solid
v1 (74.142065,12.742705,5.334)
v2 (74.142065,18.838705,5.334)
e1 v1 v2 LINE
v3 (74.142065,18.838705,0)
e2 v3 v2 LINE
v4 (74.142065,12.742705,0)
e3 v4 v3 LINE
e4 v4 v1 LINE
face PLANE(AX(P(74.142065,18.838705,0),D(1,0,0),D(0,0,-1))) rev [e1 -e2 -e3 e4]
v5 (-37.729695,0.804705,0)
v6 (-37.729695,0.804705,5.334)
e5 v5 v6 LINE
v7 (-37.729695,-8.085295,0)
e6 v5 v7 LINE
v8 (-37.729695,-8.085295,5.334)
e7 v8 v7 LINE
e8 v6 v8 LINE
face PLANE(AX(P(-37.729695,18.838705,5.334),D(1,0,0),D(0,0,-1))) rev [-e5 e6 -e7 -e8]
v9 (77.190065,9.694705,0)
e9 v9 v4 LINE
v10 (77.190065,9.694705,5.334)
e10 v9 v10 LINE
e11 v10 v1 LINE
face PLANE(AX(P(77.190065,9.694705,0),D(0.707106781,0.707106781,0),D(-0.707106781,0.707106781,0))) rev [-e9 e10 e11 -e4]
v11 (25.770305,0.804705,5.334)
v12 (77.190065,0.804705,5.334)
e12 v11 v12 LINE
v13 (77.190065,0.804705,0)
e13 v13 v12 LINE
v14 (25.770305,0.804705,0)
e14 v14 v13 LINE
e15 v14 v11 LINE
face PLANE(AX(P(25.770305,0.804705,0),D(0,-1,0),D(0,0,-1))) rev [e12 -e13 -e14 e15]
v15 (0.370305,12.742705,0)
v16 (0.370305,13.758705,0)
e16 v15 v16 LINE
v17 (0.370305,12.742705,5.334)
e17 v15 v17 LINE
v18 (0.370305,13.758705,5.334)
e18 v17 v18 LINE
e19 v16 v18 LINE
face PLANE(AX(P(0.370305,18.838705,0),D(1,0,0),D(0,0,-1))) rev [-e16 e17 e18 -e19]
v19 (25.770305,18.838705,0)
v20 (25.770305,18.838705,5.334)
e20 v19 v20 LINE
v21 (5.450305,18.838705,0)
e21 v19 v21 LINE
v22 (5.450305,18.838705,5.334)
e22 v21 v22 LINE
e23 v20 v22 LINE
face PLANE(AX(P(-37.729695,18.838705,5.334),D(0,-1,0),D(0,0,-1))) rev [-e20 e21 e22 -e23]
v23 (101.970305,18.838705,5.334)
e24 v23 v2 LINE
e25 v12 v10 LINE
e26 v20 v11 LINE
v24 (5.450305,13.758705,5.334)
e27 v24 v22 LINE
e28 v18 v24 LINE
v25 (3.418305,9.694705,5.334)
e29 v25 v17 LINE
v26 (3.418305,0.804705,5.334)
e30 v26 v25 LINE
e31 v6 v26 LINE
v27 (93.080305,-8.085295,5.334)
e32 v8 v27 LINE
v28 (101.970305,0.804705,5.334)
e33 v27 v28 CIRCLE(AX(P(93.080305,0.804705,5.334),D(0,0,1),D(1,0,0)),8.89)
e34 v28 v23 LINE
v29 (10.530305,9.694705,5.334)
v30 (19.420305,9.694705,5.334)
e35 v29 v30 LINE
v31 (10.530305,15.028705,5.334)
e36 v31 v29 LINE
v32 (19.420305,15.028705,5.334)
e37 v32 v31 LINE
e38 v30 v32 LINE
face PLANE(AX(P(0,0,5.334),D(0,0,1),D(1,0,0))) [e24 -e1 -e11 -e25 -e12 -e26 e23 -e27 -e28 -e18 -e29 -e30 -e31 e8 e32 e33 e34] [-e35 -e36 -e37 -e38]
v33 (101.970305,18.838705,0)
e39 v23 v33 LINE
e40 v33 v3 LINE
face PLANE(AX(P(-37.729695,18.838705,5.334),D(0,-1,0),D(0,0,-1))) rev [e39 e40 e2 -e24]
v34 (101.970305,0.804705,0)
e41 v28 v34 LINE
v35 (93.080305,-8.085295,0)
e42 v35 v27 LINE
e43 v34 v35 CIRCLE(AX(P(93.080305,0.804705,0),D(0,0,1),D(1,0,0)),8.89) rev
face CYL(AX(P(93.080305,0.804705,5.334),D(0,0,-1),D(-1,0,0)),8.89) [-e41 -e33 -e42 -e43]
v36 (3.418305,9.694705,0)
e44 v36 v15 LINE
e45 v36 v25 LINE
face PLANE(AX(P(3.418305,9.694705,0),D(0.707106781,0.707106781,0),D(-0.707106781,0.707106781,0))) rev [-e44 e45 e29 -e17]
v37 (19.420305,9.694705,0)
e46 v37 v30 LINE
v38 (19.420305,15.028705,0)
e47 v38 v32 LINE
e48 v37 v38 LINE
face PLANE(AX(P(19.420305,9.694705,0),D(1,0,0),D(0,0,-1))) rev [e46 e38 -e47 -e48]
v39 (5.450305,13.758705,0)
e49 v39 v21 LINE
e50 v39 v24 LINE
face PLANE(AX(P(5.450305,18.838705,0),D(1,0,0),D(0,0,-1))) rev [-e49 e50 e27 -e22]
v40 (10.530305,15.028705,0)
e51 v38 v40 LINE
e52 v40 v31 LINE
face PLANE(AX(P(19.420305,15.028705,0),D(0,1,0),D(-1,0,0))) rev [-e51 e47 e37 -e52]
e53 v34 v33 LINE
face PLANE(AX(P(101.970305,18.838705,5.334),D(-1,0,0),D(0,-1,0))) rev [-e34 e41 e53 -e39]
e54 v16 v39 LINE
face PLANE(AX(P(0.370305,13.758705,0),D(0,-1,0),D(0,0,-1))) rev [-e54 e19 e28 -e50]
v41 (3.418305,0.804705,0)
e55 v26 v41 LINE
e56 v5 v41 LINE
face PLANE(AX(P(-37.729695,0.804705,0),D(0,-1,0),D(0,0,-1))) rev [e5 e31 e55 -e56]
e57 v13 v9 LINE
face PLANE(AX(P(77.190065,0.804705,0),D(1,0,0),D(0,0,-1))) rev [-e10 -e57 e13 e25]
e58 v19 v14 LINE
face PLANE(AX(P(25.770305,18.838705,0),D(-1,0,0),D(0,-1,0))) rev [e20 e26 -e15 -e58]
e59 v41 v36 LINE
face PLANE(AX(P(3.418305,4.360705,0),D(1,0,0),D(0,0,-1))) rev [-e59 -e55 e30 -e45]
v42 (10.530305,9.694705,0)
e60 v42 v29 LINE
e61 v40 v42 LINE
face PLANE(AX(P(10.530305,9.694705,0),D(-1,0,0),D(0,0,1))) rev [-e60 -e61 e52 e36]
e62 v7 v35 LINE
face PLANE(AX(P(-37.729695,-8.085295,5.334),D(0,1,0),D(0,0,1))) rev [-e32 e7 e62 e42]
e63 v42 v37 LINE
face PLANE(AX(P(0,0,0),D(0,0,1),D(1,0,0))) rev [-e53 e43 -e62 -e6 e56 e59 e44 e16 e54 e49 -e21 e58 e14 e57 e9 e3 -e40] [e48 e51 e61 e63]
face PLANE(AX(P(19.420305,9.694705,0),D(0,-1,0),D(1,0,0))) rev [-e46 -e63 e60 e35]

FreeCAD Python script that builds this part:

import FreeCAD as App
import Part
import Sketcher
from FreeCAD import Vector
Q = App.Units.Quantity


def edges_at(feature, points):
    """Names of the edges that pass closest to the given points."""
    edges = feature.Shape.Edges
    near = lambda p: min(range(len(edges)), key=lambda i: edges[i].distToShape(Part.Vertex(*p))[0])
    return sorted({f"Edge{near(p) + 1}" for p in points})

doc = App.newDocument("Part")
body = doc.addObject("PartDesign::Body", "Body")

# Sketch on XY plane
sketch1 = body.newObject("Sketcher::SketchObject", "Sketch")
sketch1.AttachmentSupport = (doc.getObject("XY_Plane"), [""])
sketch1.MapMode = "FlatFace"
sketch1.addGeometry([
    Part.LineSegment(Vector(-38, 19, 0), Vector(-38, -8, 0)),
    Part.LineSegment(Vector(-38, -8, 0), Vector(102, -8, 0)),
    Part.LineSegment(Vector(102, -8, 0), Vector(102, 19, 0)),
    Part.LineSegment(Vector(102, 19, 0), Vector(-38, 19, 0)),
], False)
sketch1.addConstraint([
    Sketcher.Constraint("Coincident", 0, 2, 1, 1),
    Sketcher.Constraint("Coincident", 1, 2, 2, 1),
    Sketcher.Constraint("Coincident", 2, 2, 3, 1),
    Sketcher.Constraint("Coincident", 3, 2, 0, 1),
    Sketcher.Constraint("Vertical", 0),
    Sketcher.Constraint("Horizontal", 1),
    Sketcher.Constraint("Vertical", 2),
    Sketcher.Constraint("Horizontal", 3),
    Sketcher.Constraint("DistanceX", 1, 1, 1, 2, Q("5.5 in")),
    Sketcher.Constraint("DistanceY", 0, 2, 0, 1, Q("1.06 in")),
    Sketcher.Constraint("DistanceX", 0, 2, -1, 1, Q("37.729695 mm")),
    Sketcher.Constraint("DistanceY", 0, 2, -1, 1, Q("8.085295 mm")),
])
pad1 = body.newObject("PartDesign::Pad", "Pad")
pad1.Profile = sketch1
pad1.Length = Q("0.21 in")

# Sketch on XY plane
sketch2 = body.newObject("Sketcher::SketchObject", "Sketch001")
sketch2.AttachmentSupport = (doc.getObject("XY_Plane"), [""])
sketch2.MapMode = "FlatFace"
sketch2.AttachmentOffset = App.Placement(Vector(0, 0, 0.21 * 25.4), App.Rotation())
sketch2.addGeometry([
    Part.LineSegment(Vector(-38, 19, 0), Vector(-38, 1, 0)),
    Part.LineSegment(Vector(-38, 1, 0), Vector(0, 1, 0)),
    Part.LineSegment(Vector(0, 1, 0), Vector(0, 19, 0)),
    Part.LineSegment(Vector(0, 19, 0), Vector(-38, 19, 0)),
], False)
sketch2.addConstraint([
    Sketcher.Constraint("Coincident", 0, 2, 1, 1),
    Sketcher.Constraint("Coincident", 1, 2, 2, 1),
    Sketcher.Constraint("Coincident", 2, 2, 3, 1),
    Sketcher.Constraint("Coincident", 3, 2, 0, 1),
    Sketcher.Constraint("Vertical", 0),
    Sketcher.Constraint("Horizontal", 1),
    Sketcher.Constraint("Vertical", 2),
    Sketcher.Constraint("Horizontal", 3),
    Sketcher.Constraint("DistanceX", 1, 1, 1, 2, Q("1.5 in")),
    Sketcher.Constraint("DistanceY", 0, 2, 0, 1, Q("0.71 in")),
    Sketcher.Constraint("DistanceX", 0, 2, -1, 1, Q("37.729695 mm")),
    Sketcher.Constraint("DistanceY", -1, 1, 0, 2, Q("0.804705 mm")),
])
pocket1 = body.newObject("PartDesign::Pocket", "Pocket")
pocket1.Profile = sketch2
pocket1.Type = "ThroughAll"

# Sketch on XY plane
sketch3 = body.newObject("Sketcher::SketchObject", "Sketch002")
sketch3.AttachmentSupport = (doc.getObject("XY_Plane"), [""])
sketch3.MapMode = "FlatFace"
sketch3.AttachmentOffset = App.Placement(Vector(0, 0, 0.21 * 25.4), App.Rotation())
sketch3.addGeometry([
    Part.LineSegment(Vector(26, 19, 0), Vector(26, 1, 0)),
    Part.LineSegment(Vector(26, 1, 0), Vector(74, 1, 0)),
    Part.LineSegment(Vector(74, 1, 0), Vector(74, 19, 0)),
    Part.LineSegment(Vector(74, 19, 0), Vector(26, 19, 0)),
], False)
sketch3.addConstraint([
    Sketcher.Constraint("Coincident", 0, 2, 1, 1),
    Sketcher.Constraint("Coincident", 1, 2, 2, 1),
    Sketcher.Constraint("Coincident", 2, 2, 3, 1),
    Sketcher.Constraint("Coincident", 3, 2, 0, 1),
    Sketcher.Constraint("Vertical", 0),
    Sketcher.Constraint("Horizontal", 1),
    Sketcher.Constraint("Vertical", 2),
    Sketcher.Constraint("Horizontal", 3),
    Sketcher.Constraint("DistanceY", 0, 2, 0, 1, Q("0.71 in")),
    Sketcher.Constraint("DistanceX", 1, 1, 1, 2, Q("1.9044 in")),
    Sketcher.Constraint("DistanceX", -1, 1, 0, 2, Q("25.770305 mm")),
    Sketcher.Constraint("DistanceY", -1, 1, 0, 2, Q("0.804705 mm")),
])
pocket2 = body.newObject("PartDesign::Pocket", "Pocket001")
pocket2.Profile = sketch3
pocket2.Type = "ThroughAll"

# Sketch on XY plane
sketch4 = body.newObject("Sketcher::SketchObject", "Sketch003")
sketch4.AttachmentSupport = (doc.getObject("XY_Plane"), [""])
sketch4.MapMode = "FlatFace"
sketch4.AttachmentOffset = App.Placement(Vector(0, 0, 0.21 * 25.4), App.Rotation())
sketch4.addGeometry([
    Part.LineSegment(Vector(0, 19, 0), Vector(0, 14, 0)),
    Part.LineSegment(Vector(0, 14, 0), Vector(5, 14, 0)),
    Part.LineSegment(Vector(5, 14, 0), Vector(5, 19, 0)),
    Part.LineSegment(Vector(5, 19, 0), Vector(0, 19, 0)),
], False)
sketch4.addConstraint([
    Sketcher.Constraint("Coincident", 0, 2, 1, 1),
    Sketcher.Constraint("Coincident", 1, 2, 2, 1),
    Sketcher.Constraint("Coincident", 2, 2, 3, 1),
    Sketcher.Constraint("Coincident", 3, 2, 0, 1),
    Sketcher.Constraint("Vertical", 0),
    Sketcher.Constraint("Horizontal", 1),
    Sketcher.Constraint("Vertical", 2),
    Sketcher.Constraint("Horizontal", 3),
    Sketcher.Constraint("Equal", 3, 0),
    Sketcher.Constraint("DistanceX", 1, 1, 1, 2, Q("0.2 in")),
    Sketcher.Constraint("DistanceX", -1, 1, 0, 2, Q("0.370305 mm")),
    Sketcher.Constraint("DistanceY", -1, 1, 0, 2, Q("13.758705 mm")),
])
pocket3 = body.newObject("PartDesign::Pocket", "Pocket002")
pocket3.Profile = sketch4
pocket3.Type = "ThroughAll"
doc.recompute()

fillet = body.newObject("PartDesign::Fillet", "Fillet")
fillet.Base = (pocket3, edges_at(pocket3, [(101.97, -8.085, 2.667)]))
fillet.Radius = Q("0.35 in")

# Sketch on XY plane
sketch5 = body.newObject("Sketcher::SketchObject", "Sketch004")
sketch5.AttachmentSupport = (doc.getObject("XY_Plane"), [""])
sketch5.MapMode = "FlatFace"
sketch5.AttachmentOffset = App.Placement(Vector(0, 0, 0.21 * 25.4), App.Rotation())
sketch5.addGeometry([
    Part.LineSegment(Vector(11, 15, 0), Vector(11, 10, 0)),
    Part.LineSegment(Vector(11, 10, 0), Vector(19, 10, 0)),
    Part.LineSegment(Vector(19, 10, 0), Vector(19, 15, 0)),
    Part.LineSegment(Vector(19, 15, 0), Vector(11, 15, 0)),
], False)
sketch5.addConstraint([
    Sketcher.Constraint("Coincident", 0, 2, 1, 1),
    Sketcher.Constraint("Coincident", 1, 2, 2, 1),
    Sketcher.Constraint("Coincident", 2, 2, 3, 1),
    Sketcher.Constraint("Coincident", 3, 2, 0, 1),
    Sketcher.Constraint("Vertical", 0),
    Sketcher.Constraint("Horizontal", 1),
    Sketcher.Constraint("Vertical", 2),
    Sketcher.Constraint("Horizontal", 3),
    Sketcher.Constraint("DistanceX", 1, 1, 1, 2, Q("0.35 in")),
    Sketcher.Constraint("DistanceY", 0, 2, 0, 1, Q("0.21 in")),
    Sketcher.Constraint("DistanceX", -1, 1, 0, 2, Q("10.530305 mm")),
    Sketcher.Constraint("DistanceY", -1, 1, 0, 2, Q("9.694705 mm")),
])
pocket4 = body.newObject("PartDesign::Pocket", "Pocket003")
pocket4.Profile = sketch5
pocket4.Type = "ThroughAll"

# Sketch on XY plane
sketch6 = body.newObject("Sketcher::SketchObject", "Sketch005")
sketch6.AttachmentSupport = (doc.getObject("XY_Plane"), [""])
sketch6.MapMode = "FlatFace"
sketch6.AttachmentOffset = App.Placement(Vector(0, 0, 0.21 * 25.4), App.Rotation())
sketch6.addGeometry([
    Part.LineSegment(Vector(74.1, 9.7, 0), Vector(74.1, 0.8, 0)),
    Part.LineSegment(Vector(74.1, 0.8, 0), Vector(77.2, 0.8, 0)),
    Part.LineSegment(Vector(77.2, 0.8, 0), Vector(77.2, 9.7, 0)),
    Part.LineSegment(Vector(77.2, 9.7, 0), Vector(74.1, 9.7, 0)),
], False)
sketch6.addConstraint([
    Sketcher.Constraint("Coincident", 0, 2, 1, 1),
    Sketcher.Constraint("Coincident", 1, 2, 2, 1),
    Sketcher.Constraint("Coincident", 2, 2, 3, 1),
    Sketcher.Constraint("Coincident", 3, 2, 0, 1),
    Sketcher.Constraint("Vertical", 0),
    Sketcher.Constraint("Horizontal", 1),
    Sketcher.Constraint("Vertical", 2),
    Sketcher.Constraint("Horizontal", 3),
    Sketcher.Constraint("DistanceX", 1, 1, 1, 2, Q("0.12 in")),
    Sketcher.Constraint("DistanceY", 0, 2, 0, 1, Q("0.35 in")),
    Sketcher.Constraint("DistanceX", -1, 1, 0, 2, Q("74.142065 mm")),
    Sketcher.Constraint("DistanceY", -1, 1, 0, 2, Q("0.804705 mm")),
])
pocket5 = body.newObject("PartDesign::Pocket", "Pocket004")
pocket5.Profile = sketch6
pocket5.Type = "ThroughAll"

# Sketch on XY plane
sketch7 = body.newObject("Sketcher::SketchObject", "Sketch006")
sketch7.AttachmentSupport = (doc.getObject("XY_Plane"), [""])
sketch7.MapMode = "FlatFace"
sketch7.AttachmentOffset = App.Placement(Vector(0, 0, 0.21 * 25.4), App.Rotation())
sketch7.addGeometry([
    Part.LineSegment(Vector(77.2, 9.7, 0), Vector(74.1, 12.7, 0)),
    Part.LineSegment(Vector(74.1, 12.7, 0), Vector(74.1, 9.7, 0)),
    Part.LineSegment(Vector(74.1, 9.7, 0), Vector(77.2, 9.7, 0)),
], False)
sketch7.addConstraint([
    Sketcher.Constraint("Coincident", 0, 2, 1, 1),
    Sketcher.Constraint("Coincident", 1, 2, 2, 1),
    Sketcher.Constraint("Coincident", 2, 2, 0, 1),
    Sketcher.Constraint("Vertical", 1),
    Sketcher.Constraint("Horizontal", 2),
    Sketcher.Constraint("Equal", 2, 1),
    Sketcher.Constraint("DistanceX", 2, 1, 2, 2, Q("0.12 in")),
    Sketcher.Constraint("DistanceX", -1, 1, 0, 2, Q("74.142065 mm")),
    Sketcher.Constraint("DistanceY", -1, 1, 0, 2, Q("12.742705 mm")),
])
pocket6 = body.newObject("PartDesign::Pocket", "Pocket005")
pocket6.Profile = sketch7
pocket6.Type = "ThroughAll"

# Sketch on XY plane
sketch8 = body.newObject("Sketcher::SketchObject", "Sketch007")
sketch8.AttachmentSupport = (doc.getObject("XY_Plane"), [""])
sketch8.MapMode = "FlatFace"
sketch8.AttachmentOffset = App.Placement(Vector(0, 0, 0.21 * 25.4), App.Rotation())
sketch8.addGeometry([
    Part.LineSegment(Vector(0.4, 1.3, 0), Vector(3.4, 4.4, 0)),
    Part.LineSegment(Vector(3.4, 4.4, 0), Vector(3.4, 9.7, 0)),
    Part.LineSegment(Vector(3.4, 9.7, 0), Vector(0.4, 12.7, 0)),
    Part.LineSegment(Vector(0.4, 12.7, 0), Vector(0.4, 1.3, 0)),
], False)
sketch8.addConstraint([
    Sketcher.Constraint("Coincident", 0, 2, 1, 1),
    Sketcher.Constraint("Coincident", 1, 2, 2, 1),
    Sketcher.Constraint("Coincident", 2, 2, 3, 1),
    Sketcher.Constraint("Coincident", 3, 2, 0, 1),
    Sketcher.Constraint("Vertical", 1),
    Sketcher.Constraint("Vertical", 3),
    Sketcher.Constraint("Perpendicular", 0, 2),
    Sketcher.Constraint("Equal", 0, 2),
    Sketcher.Constraint("DistanceY", 1, 1, 1, 2, Q("0.21 in")),
    Sketcher.Constraint("DistanceY", 3, 2, 3, 1, Q("0.45 in")),
    Sketcher.Constraint("DistanceX", -1, 1, 0, 2, Q("3.418305 mm")),
    Sketcher.Constraint("DistanceY", -1, 1, 0, 2, Q("4.360705 mm")),
])
pocket7 = body.newObject("PartDesign::Pocket", "Pocket006")
pocket7.Profile = sketch8
pocket7.Type = "ThroughAll"

# Sketch on XY plane
sketch9 = body.newObject("Sketcher::SketchObject", "Sketch008")
sketch9.AttachmentSupport = (doc.getObject("XY_Plane"), [""])
sketch9.MapMode = "FlatFace"
sketch9.AttachmentOffset = App.Placement(Vector(0, 0, 0.21 * 25.4), App.Rotation())
sketch9.addGeometry([
    Part.LineSegment(Vector(3.4, 0.8, 0), Vector(3.4, 4.4, 0)),
    Part.LineSegment(Vector(3.4, 4.4, 0), Vector(0.4, 1.3, 0)),
    Part.LineSegment(Vector(0.4, 1.3, 0), Vector(0.4, 0.8, 0)),
    Part.LineSegment(Vector(0.4, 0.8, 0), Vector(3.4, 0.8, 0)),
], False)
sketch9.addConstraint([
    Sketcher.Constraint("Coincident", 0, 2, 1, 1),
    Sketcher.Constraint("Coincident", 1, 2, 2, 1),
    Sketcher.Constraint("Coincident", 2, 2, 3, 1),
    Sketcher.Constraint("Coincident", 3, 2, 0, 1),
    Sketcher.Constraint("Vertical", 0),
    Sketcher.Constraint("Vertical", 2),
    Sketcher.Constraint("Horizontal", 3),
    Sketcher.Constraint("Angle", 1, Q("-135 deg")),
    Sketcher.Constraint("DistanceX", 3, 1, 3, 2, Q("0.12 in")),
    Sketcher.Constraint("DistanceY", 0, 1, 0, 2, Q("0.14 in")),
    Sketcher.Constraint("DistanceX", -1, 1, 0, 2, Q("3.418305 mm")),
    Sketcher.Constraint("DistanceY", -1, 1, 0, 2, Q("4.360705 mm")),
])
pocket8 = body.newObject("PartDesign::Pocket", "Pocket007")
pocket8.Profile = sketch9
pocket8.Type = "ThroughAll"
pocket8.Midplane = True

doc.recompute()
